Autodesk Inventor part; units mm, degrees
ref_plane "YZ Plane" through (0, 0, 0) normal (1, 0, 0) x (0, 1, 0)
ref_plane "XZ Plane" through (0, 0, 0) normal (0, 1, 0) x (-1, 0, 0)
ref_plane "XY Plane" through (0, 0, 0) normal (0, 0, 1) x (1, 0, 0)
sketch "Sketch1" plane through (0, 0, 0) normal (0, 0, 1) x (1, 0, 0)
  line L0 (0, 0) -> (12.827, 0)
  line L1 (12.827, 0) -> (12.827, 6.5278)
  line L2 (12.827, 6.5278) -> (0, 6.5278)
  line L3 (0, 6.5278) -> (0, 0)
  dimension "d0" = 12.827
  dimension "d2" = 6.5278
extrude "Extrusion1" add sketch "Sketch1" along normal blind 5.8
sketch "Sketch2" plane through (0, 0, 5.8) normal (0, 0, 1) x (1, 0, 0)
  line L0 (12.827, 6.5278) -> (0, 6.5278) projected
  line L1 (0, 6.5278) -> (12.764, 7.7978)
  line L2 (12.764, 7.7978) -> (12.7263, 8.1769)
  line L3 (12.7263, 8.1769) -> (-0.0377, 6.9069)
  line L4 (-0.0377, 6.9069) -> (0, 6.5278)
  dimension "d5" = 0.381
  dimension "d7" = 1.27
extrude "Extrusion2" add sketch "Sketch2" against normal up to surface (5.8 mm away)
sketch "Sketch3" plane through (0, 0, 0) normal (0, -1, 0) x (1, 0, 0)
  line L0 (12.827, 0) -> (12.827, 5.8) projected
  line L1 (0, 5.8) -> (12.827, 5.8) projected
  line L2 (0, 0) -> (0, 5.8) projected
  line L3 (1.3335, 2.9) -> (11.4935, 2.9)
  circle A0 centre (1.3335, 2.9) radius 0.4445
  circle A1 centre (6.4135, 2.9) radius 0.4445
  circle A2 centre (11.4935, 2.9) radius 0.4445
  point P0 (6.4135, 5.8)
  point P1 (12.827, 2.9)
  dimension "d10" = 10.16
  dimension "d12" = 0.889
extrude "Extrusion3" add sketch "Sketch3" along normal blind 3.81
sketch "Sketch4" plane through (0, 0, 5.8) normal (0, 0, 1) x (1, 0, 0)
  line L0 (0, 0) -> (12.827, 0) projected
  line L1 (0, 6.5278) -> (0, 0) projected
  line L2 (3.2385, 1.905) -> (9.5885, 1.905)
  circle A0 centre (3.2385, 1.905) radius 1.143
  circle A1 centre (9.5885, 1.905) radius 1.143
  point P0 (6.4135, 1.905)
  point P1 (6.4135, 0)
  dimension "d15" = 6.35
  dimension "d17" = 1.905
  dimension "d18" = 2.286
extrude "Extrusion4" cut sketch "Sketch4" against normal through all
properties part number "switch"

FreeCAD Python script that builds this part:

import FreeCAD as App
import Part
import Sketcher
from FreeCAD import Vector
Q = App.Units.Quantity

doc = App.newDocument("Part")
body = doc.addObject("PartDesign::Body", "Body")
body.AllowCompound = True

# Sketch on XY plane
sketch1 = body.newObject("Sketcher::SketchObject", "Sketch")
sketch1.AttachmentSupport = (doc.getObject("XY_Plane"), [""])
sketch1.MapMode = "FlatFace"
sketch1.addGeometry([
    Part.LineSegment(Vector(0, 7, 0), Vector(0, 0, 0)),
    Part.LineSegment(Vector(0, 0, 0), Vector(13, 0, 0)),
    Part.LineSegment(Vector(13, 0, 0), Vector(13, 7, 0)),
    Part.LineSegment(Vector(13, 7, 0), Vector(0, 7, 0)),
], False)
sketch1.addConstraint([
    Sketcher.Constraint("Coincident", 0, 2, 1, 1),
    Sketcher.Constraint("Coincident", 1, 2, 2, 1),
    Sketcher.Constraint("Coincident", 2, 2, 3, 1),
    Sketcher.Constraint("Coincident", 3, 2, 0, 1),
    Sketcher.Constraint("Vertical", 0),
    Sketcher.Constraint("Horizontal", 1),
    Sketcher.Constraint("Vertical", 2),
    Sketcher.Constraint("Horizontal", 3),
    Sketcher.Constraint("Coincident", 0, 2, -1, 1),
    Sketcher.Constraint("DistanceX", 1, 1, 1, 2, Q("0.505 in")),
    Sketcher.Constraint("DistanceY", 0, 2, 0, 1, Q("0.257 in")),
])
pad1 = body.newObject("PartDesign::Pad", "Pad")
pad1.Profile = sketch1
pad1.Length = 5.8

# Sketch on XY plane
sketch2 = body.newObject("Sketcher::SketchObject", "Sketch001")
sketch2.AttachmentSupport = (doc.getObject("XY_Plane"), [""])
sketch2.MapMode = "FlatFace"
sketch2.AttachmentOffset = App.Placement(Vector(0, 0, 5.8), App.Rotation())
sketch2.addGeometry([
    Part.LineSegment(Vector(-0.04, 6.91, 0), Vector(0, 6.53, 0)),
    Part.LineSegment(Vector(0, 6.53, 0), Vector(12.76, 7.8, 0)),
    Part.LineSegment(Vector(12.76, 7.8, 0), Vector(12.73, 8.18, 0)),
    Part.LineSegment(Vector(12.73, 8.18, 0), Vector(-0.04, 6.91, 0)),
], False)
sketch2.addConstraint([
    Sketcher.Constraint("Coincident", 0, 2, 1, 1),
    Sketcher.Constraint("Coincident", 1, 2, 2, 1),
    Sketcher.Constraint("Coincident", 2, 2, 3, 1),
    Sketcher.Constraint("Coincident", 3, 2, 0, 1),
    Sketcher.Constraint("PointOnObject", 0, 2, -2),
    Sketcher.Constraint("Perpendicular", 0, 1),
    Sketcher.Constraint("Perpendicular", 1, 2),
    Sketcher.Constraint("Perpendicular", 2, 3),
    Sketcher.Constraint("DistanceY", 0, 2, 1, 2, Q("0.05 in")),
    Sketcher.Constraint("Distance", 0, Q("0.015 in")),
    Sketcher.Constraint("Distance", 1, Q("0.505 in")),
    Sketcher.Constraint("DistanceY", -1, 1, 0, 2, Q("0.257 in")),
])
pad2 = body.newObject("PartDesign::Pad", "Pad001")
pad2.Profile = sketch2
pad2.Length = 5.8
pad2.Reversed = True

# Sketch on XZ plane
sketch3 = body.newObject("Sketcher::SketchObject", "Sketch002")
sketch3.AttachmentSupport = (doc.getObject("XZ_Plane"), [""])
sketch3.MapMode = "FlatFace"
sketch3.addGeometry([
    Part.Circle(Vector(11.49, 2.9, 0), Vector(0, 0, 1), 0.44),
    Part.Circle(Vector(6.41, 2.9, 0), Vector(0, 0, 1), 0.44),
    Part.Circle(Vector(1.33, 2.9, 0), Vector(0, 0, 1), 0.44),
], False)
sketch3.addConstraint([
    Sketcher.Constraint("Equal", 0, 1),
    Sketcher.Constraint("Equal", 1, 2),
    Sketcher.Constraint("Horizontal", 0, 3, 1, 3),
    Sketcher.Constraint("Horizontal", 1, 3, 2, 3),
    Sketcher.Constraint("Diameter", 0, Q("0.035 in")),
    Sketcher.Constraint("DistanceX", 2, 3, 0, 3, Q("0.4 in")),
    Sketcher.Constraint("DistanceX", 1, 3, 0, 3, Q("0.2 in")),
    Sketcher.Constraint("DistanceX", -1, 1, 0, 3, Q("0.4525 in")),
    Sketcher.Constraint("DistanceY", -1, 1, 0, 3, Q("2.9 mm")),
])
pad3 = body.newObject("PartDesign::Pad", "Pad002")
pad3.Profile = sketch3
pad3.Length = Q("0.15 in")

# Sketch on XY plane
sketch4 = body.newObject("Sketcher::SketchObject", "Sketch003")
sketch4.AttachmentSupport = (doc.getObject("XY_Plane"), [""])
sketch4.MapMode = "FlatFace"
sketch4.AttachmentOffset = App.Placement(Vector(0, 0, 5.8), App.Rotation())
sketch4.addGeometry([
    Part.Circle(Vector(9.6, 1.9, 0), Vector(0, 0, 1), 1.1),
    Part.Circle(Vector(3.2, 1.9, 0), Vector(0, 0, 1), 1.1),
], False)
sketch4.addConstraint([
    Sketcher.Constraint("Equal", 0, 1),
    Sketcher.Constraint("Horizontal", 0, 3, 1, 3),
    Sketcher.Constraint("Diameter", 0, Q("0.09 in")),
    Sketcher.Constraint("DistanceX", 1, 3, 0, 3, Q("0.25 in")),
    Sketcher.Constraint("DistanceY", -1, 1, 0, 3, Q("0.075 in")),
    Sketcher.Constraint("DistanceX", -1, 1, 0, 3, Q("0.3775 in")),
])
pocket1 = body.newObject("PartDesign::Pocket", "Pocket")
pocket1.Profile = sketch4
pocket1.Type = "ThroughAll"

doc.recompute()
